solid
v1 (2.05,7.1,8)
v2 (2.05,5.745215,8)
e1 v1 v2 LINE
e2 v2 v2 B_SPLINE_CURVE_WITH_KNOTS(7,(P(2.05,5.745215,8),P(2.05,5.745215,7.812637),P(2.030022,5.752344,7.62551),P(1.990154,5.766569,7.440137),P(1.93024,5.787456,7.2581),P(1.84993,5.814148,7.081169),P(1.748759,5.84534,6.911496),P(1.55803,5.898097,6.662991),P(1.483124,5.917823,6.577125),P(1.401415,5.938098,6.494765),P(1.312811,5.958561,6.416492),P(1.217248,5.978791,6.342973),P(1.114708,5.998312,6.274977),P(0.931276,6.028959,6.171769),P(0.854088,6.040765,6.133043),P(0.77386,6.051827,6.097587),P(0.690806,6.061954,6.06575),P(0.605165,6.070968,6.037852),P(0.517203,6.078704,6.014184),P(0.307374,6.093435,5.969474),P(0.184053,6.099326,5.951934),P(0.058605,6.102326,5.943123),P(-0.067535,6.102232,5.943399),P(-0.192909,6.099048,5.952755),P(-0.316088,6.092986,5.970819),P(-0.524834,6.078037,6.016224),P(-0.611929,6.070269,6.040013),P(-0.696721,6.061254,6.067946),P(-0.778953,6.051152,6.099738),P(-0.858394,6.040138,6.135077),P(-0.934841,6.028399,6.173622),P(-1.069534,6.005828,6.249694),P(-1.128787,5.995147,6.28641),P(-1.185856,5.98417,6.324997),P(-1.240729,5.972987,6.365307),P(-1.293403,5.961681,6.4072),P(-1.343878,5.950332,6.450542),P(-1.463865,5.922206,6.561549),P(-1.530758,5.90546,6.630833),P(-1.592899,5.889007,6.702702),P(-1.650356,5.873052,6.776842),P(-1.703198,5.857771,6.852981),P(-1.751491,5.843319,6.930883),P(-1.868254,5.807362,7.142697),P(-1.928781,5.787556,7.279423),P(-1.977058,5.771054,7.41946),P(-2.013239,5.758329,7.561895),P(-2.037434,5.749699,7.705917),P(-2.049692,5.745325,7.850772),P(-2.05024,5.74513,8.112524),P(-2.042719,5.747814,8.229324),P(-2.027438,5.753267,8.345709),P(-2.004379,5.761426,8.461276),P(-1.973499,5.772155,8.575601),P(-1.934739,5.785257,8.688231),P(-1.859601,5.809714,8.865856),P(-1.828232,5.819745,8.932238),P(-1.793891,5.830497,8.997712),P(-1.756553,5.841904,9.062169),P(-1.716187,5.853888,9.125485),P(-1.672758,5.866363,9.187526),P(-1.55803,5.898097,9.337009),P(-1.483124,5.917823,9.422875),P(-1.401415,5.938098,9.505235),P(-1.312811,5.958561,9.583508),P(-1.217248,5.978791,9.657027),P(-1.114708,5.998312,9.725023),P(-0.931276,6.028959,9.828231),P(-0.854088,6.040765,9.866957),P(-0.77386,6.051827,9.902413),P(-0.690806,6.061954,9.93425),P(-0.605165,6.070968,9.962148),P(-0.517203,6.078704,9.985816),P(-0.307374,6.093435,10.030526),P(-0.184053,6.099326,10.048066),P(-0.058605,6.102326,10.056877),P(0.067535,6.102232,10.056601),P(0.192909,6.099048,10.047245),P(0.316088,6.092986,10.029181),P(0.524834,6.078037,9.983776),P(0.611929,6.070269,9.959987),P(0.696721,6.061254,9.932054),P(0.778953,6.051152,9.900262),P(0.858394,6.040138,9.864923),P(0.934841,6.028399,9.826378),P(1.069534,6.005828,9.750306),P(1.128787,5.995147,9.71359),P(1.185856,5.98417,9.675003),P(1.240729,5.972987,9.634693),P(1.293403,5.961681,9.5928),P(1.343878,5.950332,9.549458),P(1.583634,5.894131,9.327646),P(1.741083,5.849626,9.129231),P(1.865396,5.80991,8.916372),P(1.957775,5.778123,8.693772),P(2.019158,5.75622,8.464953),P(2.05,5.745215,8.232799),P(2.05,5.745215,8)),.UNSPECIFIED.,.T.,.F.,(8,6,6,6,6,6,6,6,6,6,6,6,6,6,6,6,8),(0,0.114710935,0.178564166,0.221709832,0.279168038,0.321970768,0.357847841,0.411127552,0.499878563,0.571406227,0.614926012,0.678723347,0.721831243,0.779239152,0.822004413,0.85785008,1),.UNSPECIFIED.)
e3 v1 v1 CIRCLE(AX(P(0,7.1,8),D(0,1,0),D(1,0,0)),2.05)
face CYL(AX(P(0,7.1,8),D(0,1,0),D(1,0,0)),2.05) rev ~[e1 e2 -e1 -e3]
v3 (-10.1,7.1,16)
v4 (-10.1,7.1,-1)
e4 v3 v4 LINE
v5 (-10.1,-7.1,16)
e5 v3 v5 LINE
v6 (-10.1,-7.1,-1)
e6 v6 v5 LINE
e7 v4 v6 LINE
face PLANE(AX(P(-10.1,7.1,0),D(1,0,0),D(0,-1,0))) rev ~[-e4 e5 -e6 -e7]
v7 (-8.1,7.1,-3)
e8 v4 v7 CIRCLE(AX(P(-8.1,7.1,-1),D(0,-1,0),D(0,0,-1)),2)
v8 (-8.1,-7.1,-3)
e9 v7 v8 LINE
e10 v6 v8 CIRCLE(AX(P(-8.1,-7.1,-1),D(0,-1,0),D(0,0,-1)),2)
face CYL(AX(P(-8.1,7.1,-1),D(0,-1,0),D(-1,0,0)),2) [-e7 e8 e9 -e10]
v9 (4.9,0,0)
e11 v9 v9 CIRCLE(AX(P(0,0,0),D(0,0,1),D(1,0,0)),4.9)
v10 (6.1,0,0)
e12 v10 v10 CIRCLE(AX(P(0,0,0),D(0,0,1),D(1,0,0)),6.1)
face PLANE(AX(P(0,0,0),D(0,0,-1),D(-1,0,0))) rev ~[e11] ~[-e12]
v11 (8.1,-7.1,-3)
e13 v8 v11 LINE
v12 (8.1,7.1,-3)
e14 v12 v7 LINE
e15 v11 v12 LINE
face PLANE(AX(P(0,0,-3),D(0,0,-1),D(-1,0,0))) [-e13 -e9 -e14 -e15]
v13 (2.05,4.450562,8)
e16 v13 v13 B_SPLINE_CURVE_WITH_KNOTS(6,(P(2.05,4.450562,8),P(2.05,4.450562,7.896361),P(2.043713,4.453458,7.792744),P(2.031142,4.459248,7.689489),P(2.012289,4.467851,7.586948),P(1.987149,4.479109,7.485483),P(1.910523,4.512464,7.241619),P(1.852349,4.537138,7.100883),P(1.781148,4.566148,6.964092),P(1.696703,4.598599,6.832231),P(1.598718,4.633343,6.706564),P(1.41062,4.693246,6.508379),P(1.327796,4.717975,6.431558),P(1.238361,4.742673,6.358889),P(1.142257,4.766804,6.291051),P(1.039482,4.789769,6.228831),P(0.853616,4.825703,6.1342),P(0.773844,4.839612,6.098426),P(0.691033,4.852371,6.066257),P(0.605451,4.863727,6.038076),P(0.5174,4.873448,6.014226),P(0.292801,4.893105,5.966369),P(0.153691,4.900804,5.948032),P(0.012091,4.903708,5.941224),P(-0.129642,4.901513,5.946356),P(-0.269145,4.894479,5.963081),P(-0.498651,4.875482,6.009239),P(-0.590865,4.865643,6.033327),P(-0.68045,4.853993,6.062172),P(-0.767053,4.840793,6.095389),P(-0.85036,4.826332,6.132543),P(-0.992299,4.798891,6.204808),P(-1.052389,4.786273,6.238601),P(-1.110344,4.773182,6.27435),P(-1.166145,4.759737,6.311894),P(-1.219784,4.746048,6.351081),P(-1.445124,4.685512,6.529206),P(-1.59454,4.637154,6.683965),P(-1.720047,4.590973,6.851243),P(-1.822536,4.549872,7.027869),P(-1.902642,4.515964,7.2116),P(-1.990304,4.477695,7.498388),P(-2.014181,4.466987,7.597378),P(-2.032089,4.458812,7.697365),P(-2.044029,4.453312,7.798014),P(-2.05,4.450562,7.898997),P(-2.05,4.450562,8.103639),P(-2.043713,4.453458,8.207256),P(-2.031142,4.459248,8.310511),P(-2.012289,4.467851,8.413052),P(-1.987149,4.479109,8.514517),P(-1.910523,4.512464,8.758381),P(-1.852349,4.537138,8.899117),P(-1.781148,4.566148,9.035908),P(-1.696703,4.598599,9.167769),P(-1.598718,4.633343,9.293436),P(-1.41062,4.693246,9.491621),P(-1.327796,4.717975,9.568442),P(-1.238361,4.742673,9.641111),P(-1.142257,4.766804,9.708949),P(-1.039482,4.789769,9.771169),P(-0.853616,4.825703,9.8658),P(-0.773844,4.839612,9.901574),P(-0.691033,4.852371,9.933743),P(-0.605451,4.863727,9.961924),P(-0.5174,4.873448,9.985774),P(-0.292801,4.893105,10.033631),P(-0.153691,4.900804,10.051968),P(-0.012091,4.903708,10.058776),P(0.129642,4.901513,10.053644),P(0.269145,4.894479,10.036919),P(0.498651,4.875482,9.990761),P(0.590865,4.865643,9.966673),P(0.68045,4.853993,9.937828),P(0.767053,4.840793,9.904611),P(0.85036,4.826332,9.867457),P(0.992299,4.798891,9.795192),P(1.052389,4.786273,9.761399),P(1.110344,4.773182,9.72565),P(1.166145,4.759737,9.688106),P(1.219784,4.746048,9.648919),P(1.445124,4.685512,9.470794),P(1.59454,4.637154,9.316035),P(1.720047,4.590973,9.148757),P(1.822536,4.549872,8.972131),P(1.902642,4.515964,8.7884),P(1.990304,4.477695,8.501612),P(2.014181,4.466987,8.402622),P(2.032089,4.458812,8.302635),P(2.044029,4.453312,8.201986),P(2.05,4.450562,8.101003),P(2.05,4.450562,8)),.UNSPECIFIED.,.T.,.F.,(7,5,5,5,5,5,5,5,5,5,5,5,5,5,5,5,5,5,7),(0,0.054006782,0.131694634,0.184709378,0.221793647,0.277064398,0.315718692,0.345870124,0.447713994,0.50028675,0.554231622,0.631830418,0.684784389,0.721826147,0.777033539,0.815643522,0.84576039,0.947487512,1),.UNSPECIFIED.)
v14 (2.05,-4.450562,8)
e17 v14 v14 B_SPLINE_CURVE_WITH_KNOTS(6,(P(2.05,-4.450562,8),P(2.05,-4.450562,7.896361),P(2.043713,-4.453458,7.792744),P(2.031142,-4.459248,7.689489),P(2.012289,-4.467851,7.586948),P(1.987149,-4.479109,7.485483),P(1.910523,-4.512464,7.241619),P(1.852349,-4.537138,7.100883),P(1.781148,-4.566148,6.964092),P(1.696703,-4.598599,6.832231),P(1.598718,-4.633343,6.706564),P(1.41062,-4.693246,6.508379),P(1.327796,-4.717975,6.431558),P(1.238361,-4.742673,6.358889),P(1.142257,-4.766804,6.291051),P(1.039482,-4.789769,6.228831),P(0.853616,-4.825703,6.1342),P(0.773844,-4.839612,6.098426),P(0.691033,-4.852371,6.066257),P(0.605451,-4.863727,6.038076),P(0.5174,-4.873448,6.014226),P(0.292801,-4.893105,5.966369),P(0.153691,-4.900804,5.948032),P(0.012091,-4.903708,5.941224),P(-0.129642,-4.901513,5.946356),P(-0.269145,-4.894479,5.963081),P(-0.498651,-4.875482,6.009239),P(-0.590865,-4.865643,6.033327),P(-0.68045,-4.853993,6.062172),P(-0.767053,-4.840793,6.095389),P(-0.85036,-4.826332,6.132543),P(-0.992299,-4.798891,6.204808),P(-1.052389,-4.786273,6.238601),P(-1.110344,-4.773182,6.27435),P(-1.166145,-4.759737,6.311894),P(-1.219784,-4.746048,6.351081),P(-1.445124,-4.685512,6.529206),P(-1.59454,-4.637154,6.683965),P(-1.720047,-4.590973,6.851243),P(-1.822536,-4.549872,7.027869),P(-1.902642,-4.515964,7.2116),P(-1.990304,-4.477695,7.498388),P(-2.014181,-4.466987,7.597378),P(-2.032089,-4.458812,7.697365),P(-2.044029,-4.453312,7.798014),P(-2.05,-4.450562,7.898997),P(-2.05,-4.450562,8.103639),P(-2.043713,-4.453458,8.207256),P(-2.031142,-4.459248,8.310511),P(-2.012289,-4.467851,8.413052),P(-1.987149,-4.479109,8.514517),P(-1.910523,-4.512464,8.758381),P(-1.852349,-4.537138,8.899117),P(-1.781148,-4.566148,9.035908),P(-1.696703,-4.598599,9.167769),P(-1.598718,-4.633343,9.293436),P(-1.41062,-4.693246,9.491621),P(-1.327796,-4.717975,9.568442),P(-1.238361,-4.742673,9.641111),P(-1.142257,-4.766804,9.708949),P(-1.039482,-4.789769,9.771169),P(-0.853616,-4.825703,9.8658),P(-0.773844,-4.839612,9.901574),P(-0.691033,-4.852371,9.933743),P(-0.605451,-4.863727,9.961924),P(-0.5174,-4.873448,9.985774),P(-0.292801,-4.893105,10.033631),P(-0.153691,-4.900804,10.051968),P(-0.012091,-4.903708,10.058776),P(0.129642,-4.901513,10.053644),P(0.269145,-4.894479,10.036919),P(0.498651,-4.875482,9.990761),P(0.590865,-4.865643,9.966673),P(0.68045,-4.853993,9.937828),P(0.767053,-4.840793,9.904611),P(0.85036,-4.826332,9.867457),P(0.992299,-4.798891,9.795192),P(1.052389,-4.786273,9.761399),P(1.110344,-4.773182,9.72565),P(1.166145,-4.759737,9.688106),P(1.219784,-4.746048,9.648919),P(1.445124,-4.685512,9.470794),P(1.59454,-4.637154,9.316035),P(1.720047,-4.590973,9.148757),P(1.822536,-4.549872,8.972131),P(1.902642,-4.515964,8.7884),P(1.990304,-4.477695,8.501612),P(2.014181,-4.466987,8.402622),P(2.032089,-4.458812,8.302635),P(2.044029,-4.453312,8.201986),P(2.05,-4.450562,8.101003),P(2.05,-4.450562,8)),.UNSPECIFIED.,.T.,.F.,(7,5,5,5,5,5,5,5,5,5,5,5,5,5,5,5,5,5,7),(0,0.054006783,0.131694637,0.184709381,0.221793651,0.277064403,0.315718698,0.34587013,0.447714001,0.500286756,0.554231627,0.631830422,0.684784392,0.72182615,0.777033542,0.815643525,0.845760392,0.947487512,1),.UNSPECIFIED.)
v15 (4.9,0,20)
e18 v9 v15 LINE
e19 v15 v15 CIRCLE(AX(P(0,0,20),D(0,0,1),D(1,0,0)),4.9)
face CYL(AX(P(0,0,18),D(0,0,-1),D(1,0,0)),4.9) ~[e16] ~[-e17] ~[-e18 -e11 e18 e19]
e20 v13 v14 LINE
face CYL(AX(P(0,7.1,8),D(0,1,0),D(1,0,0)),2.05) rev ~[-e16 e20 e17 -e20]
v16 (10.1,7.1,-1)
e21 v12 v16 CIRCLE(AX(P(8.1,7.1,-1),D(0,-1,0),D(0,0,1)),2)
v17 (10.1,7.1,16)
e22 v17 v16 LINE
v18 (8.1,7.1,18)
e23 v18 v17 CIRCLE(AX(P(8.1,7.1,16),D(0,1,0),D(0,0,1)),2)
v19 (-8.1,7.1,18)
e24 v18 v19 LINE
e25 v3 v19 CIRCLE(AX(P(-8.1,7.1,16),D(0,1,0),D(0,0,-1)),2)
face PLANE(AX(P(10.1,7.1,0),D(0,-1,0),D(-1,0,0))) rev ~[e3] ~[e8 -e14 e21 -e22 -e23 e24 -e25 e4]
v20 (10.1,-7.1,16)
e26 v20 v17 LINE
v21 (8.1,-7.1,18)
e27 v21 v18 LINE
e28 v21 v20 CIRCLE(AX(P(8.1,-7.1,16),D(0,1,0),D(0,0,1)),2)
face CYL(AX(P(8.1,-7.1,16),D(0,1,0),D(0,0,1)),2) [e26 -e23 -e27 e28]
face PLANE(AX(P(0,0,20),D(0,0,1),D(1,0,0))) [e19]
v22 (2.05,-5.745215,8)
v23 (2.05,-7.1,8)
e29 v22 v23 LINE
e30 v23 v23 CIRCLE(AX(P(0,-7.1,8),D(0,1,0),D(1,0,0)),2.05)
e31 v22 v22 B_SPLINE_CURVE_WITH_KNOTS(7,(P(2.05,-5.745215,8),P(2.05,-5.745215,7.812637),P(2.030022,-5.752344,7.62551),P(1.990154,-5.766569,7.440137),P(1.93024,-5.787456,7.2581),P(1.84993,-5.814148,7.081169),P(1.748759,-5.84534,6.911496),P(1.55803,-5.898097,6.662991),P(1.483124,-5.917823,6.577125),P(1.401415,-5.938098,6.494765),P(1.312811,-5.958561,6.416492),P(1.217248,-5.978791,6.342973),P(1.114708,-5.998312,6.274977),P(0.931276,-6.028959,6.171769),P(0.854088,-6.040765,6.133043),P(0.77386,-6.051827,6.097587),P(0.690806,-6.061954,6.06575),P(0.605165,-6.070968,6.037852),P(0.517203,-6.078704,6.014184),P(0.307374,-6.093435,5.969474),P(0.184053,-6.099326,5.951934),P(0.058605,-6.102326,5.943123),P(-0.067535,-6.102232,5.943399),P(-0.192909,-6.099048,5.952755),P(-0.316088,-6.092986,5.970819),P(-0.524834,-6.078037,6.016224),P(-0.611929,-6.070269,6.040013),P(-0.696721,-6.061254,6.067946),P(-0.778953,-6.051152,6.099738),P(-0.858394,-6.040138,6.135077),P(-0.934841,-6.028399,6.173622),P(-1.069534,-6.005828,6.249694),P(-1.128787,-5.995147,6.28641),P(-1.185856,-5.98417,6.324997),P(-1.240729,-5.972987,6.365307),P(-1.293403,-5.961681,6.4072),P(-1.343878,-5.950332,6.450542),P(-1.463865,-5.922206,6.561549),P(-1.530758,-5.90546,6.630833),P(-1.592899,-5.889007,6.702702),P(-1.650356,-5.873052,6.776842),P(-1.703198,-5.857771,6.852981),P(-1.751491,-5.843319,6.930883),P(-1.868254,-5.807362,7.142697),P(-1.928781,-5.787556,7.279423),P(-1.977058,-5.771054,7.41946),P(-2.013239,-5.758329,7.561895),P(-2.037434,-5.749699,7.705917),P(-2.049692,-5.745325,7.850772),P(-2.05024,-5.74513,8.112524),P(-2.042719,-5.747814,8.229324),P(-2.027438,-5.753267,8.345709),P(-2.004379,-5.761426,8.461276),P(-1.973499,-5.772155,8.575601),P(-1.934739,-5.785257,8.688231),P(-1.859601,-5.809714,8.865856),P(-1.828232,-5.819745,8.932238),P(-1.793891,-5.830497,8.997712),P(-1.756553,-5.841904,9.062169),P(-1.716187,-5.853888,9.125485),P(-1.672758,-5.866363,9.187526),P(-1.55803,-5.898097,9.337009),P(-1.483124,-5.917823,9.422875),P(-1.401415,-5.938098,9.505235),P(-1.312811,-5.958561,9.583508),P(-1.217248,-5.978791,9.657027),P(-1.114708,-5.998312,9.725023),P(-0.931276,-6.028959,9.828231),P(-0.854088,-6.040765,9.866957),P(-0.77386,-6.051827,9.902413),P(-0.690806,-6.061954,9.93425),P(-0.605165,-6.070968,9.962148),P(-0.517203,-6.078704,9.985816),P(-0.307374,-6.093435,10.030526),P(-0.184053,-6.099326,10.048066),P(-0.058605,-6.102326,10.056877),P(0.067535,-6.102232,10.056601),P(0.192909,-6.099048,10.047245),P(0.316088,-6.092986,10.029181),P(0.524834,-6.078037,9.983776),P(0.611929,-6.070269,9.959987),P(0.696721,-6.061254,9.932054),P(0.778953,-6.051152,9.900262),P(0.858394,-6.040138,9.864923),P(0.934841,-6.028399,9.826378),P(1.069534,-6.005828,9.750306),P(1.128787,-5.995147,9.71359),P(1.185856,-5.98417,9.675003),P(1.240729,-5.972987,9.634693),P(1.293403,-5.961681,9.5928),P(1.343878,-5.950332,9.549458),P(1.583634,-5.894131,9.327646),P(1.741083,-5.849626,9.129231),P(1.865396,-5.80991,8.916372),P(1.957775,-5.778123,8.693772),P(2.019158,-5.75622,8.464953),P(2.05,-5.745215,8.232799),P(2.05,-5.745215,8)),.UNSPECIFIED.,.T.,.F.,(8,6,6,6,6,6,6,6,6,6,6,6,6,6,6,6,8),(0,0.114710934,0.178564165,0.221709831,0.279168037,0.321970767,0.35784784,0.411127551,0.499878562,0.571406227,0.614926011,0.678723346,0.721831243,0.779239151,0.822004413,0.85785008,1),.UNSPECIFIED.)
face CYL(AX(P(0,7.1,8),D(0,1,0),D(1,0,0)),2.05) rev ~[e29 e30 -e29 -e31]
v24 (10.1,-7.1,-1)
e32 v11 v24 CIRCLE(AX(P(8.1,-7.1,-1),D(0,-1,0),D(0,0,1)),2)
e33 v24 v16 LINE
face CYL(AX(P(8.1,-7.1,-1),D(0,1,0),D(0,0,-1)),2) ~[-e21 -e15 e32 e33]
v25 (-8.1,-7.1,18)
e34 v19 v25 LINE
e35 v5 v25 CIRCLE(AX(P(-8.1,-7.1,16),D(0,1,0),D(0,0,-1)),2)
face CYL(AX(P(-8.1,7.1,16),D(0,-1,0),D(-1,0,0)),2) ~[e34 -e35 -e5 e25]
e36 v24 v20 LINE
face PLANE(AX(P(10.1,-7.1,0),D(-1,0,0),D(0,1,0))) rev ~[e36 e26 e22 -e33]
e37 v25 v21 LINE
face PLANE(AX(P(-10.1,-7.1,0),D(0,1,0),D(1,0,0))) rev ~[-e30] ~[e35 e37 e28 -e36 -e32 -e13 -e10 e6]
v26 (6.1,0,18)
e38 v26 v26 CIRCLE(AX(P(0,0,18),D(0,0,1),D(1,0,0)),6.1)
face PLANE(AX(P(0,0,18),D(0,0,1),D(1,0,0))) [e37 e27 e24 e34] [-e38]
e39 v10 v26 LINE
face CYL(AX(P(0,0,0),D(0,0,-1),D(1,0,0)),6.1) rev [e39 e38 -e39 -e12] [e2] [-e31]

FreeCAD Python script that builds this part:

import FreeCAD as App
import Part
import Sketcher


def edges_at(feature, points):
    """Names of the edges that pass closest to the given points."""
    edges = feature.Shape.Edges
    near = lambda p: min(range(len(edges)), key=lambda i: edges[i].distToShape(Part.Vertex(*p))[0])
    return sorted({f"Edge{near(p) + 1}" for p in points})

doc = App.newDocument("Part")
params = doc.addObject("Spreadsheet::Sheet", "Params")
for row, (alias, value) in enumerate([
    ("sketch1_diameter", "9.8 mm"),
    ("sketch1_diameter2", "12.2 mm"),
    ("sketch1_width", "20.2 mm"),
    ("sketch1_height", "14.2 mm"),
    ("pad1_length", "18 mm"),
    ("sketch2_diameter", "9.8 mm"),
    ("pad2_length", "2 mm"),
    ("sketch3_width", "20.2 mm"),
    ("sketch3_height", "14.2 mm"),
    ("pad3_length", "3 mm"),
    ("sketch4_diameter", "4.1 mm"),
    ("pocket1_length", "100 mm"),
    ("fillet_radius", "2 mm"),
], start=1):
    params.set(f"A{row}", alias)
    params.set(f"B{row}", "=" + value)
    params.setAlias(f"B{row}", alias)

body = doc.addObject("PartDesign::Body", "Body")
body.AllowCompound = True

# Sketch on XY plane
sketch1 = body.newObject("Sketcher::SketchObject", "Sketch")
sketch1.AttachmentSupport = (doc.getObject("XY_Plane"), [""])
sketch1.MapMode = "FlatFace"
sketch1.addGeometry([
    Part.Circle(App.Vector(0, 0, 0), App.Vector(0, 0, 1), 4.9),  # 0
    Part.LineSegment(App.Vector(-10.1, 7.1, 0), App.Vector(-10.1, -7.1, 0)),  # 1
    Part.LineSegment(App.Vector(-10.1, -7.1, 0), App.Vector(10.1, -7.1, 0)),  # 2
    Part.LineSegment(App.Vector(10.1, -7.1, 0), App.Vector(10.1, 7.1, 0)),  # 3
    Part.LineSegment(App.Vector(10.1, 7.1, 0), App.Vector(-10.1, 7.1, 0)),  # 4
    Part.Circle(App.Vector(0, 0, 0), App.Vector(0, 0, 1), 6.1),  # 5
], False)
sketch1.addConstraint([
    Sketcher.Constraint("Coincident", 1, 2, 2, 1),
    Sketcher.Constraint("Coincident", 2, 2, 3, 1),
    Sketcher.Constraint("Coincident", 3, 2, 4, 1),
    Sketcher.Constraint("Coincident", 4, 2, 1, 1),
    Sketcher.Constraint("Vertical", 1),
    Sketcher.Constraint("Horizontal", 2),
    Sketcher.Constraint("Vertical", 3),
    Sketcher.Constraint("Horizontal", 4),
    Sketcher.Constraint("Coincident", 0, 3, -1, 1),
    Sketcher.Constraint("Coincident", 5, 3, -1, 1),
    Sketcher.Constraint("Symmetric", 1, 2, 3, 2, -1, 1),
    Sketcher.Constraint("Diameter", 0, 9.8),
    Sketcher.Constraint("Diameter", 5, 12.2),
    Sketcher.Constraint("DistanceX", 2, 1, 2, 2, 20.2),
    Sketcher.Constraint("DistanceY", 1, 2, 1, 1, 14.2),
])
sketch1.setExpression("Constraints[11]", "Params.sketch1_diameter")
sketch1.setExpression("Constraints[12]", "Params.sketch1_diameter2")
sketch1.setExpression("Constraints[13]", "Params.sketch1_width")
sketch1.setExpression("Constraints[14]", "Params.sketch1_height")
pad1 = body.newObject("PartDesign::Pad", "Pad")
pad1.Profile = sketch1
pad1.setExpression("Length", "Params.pad1_length")

# Sketch on XY plane
sketch2 = body.newObject("Sketcher::SketchObject", "Sketch001")
sketch2.AttachmentSupport = (doc.getObject("XY_Plane"), [""])
sketch2.MapMode = "FlatFace"
sketch2.AttachmentOffset = App.Placement(App.Vector(0, 0, 18), App.Rotation())
sketch2.addGeometry(Part.Circle(App.Vector(0, 0, 0), App.Vector(0, 0, 1), 4.9), False)
sketch2.addConstraint([
    Sketcher.Constraint("Coincident", 0, 3, -1, 1),
    Sketcher.Constraint("Diameter", 0, 9.8),
])
sketch2.setExpression("Constraints[1]", "Params.sketch2_diameter")
pad2 = body.newObject("PartDesign::Pad", "Pad001")
pad2.Profile = sketch2
pad2.setExpression("Length", "Params.pad2_length")

# Sketch on XY plane
sketch3 = body.newObject("Sketcher::SketchObject", "Sketch002")
sketch3.AttachmentSupport = (doc.getObject("XY_Plane"), [""])
sketch3.MapMode = "FlatFace"
sketch3.addGeometry([
    Part.LineSegment(App.Vector(10, 7, 0), App.Vector(10, -7, 0)),
    Part.LineSegment(App.Vector(10, -7, 0), App.Vector(-10, -7, 0)),
    Part.LineSegment(App.Vector(-10, -7, 0), App.Vector(-10, 7, 0)),
    Part.LineSegment(App.Vector(-10, 7, 0), App.Vector(10, 7, 0)),
], False)
sketch3.addConstraint([
    Sketcher.Constraint("Coincident", 0, 2, 1, 1),
    Sketcher.Constraint("Coincident", 1, 2, 2, 1),
    Sketcher.Constraint("Coincident", 2, 2, 3, 1),
    Sketcher.Constraint("Coincident", 3, 2, 0, 1),
    Sketcher.Constraint("Vertical", 0),
    Sketcher.Constraint("Horizontal", 1),
    Sketcher.Constraint("Vertical", 2),
    Sketcher.Constraint("Horizontal", 3),
    Sketcher.Constraint("Symmetric", 0, 2, 2, 2, -1, 1),
    Sketcher.Constraint("DistanceX", 1, 2, 1, 1, 20.2),
    Sketcher.Constraint("DistanceY", 0, 2, 0, 1, 14.2),
])
sketch3.setExpression("Constraints[9]", "Params.sketch3_width")
sketch3.setExpression("Constraints[10]", "Params.sketch3_height")
pad3 = body.newObject("PartDesign::Pad", "Pad002")
pad3.Profile = sketch3
pad3.setExpression("Length", "Params.pad3_length")
pad3.Reversed = True

# Sketch on XZ plane
sketch4 = body.newObject("Sketcher::SketchObject", "Sketch003")
sketch4.AttachmentSupport = (doc.getObject("XZ_Plane"), [""])
sketch4.MapMode = "FlatFace"
sketch4.AttachmentOffset = App.Placement(App.Vector(0, 0, -7.1), App.Rotation())
sketch4.addGeometry(Part.Circle(App.Vector(0, 8, 0), App.Vector(0, 0, 1), 2), False)
sketch4.addConstraint([
    Sketcher.Constraint("PointOnObject", 0, 3, -2),
    Sketcher.Constraint("Diameter", 0, 4.1),
    Sketcher.Constraint("DistanceY", -1, 1, 0, 3, 8.0),
])
sketch4.setExpression("Constraints[1]", "Params.sketch4_diameter")
pocket1 = body.newObject("PartDesign::Pocket", "Pocket")
pocket1.Profile = sketch4
pocket1.setExpression("Length", "Params.pocket1_length")
pocket1.Reversed = True
doc.recompute()

fillet = body.newObject("PartDesign::Fillet", "Fillet")
fillet.Base = (pocket1, edges_at(pocket1, [
    (10.1, 0, 18),
    (-10.1, 0, 18),
    (10.1, 0, -3),
    (-10.1, 0, -3),
]))
fillet.setExpression("Radius", "Params.fillet_radius")

doc.recompute()
